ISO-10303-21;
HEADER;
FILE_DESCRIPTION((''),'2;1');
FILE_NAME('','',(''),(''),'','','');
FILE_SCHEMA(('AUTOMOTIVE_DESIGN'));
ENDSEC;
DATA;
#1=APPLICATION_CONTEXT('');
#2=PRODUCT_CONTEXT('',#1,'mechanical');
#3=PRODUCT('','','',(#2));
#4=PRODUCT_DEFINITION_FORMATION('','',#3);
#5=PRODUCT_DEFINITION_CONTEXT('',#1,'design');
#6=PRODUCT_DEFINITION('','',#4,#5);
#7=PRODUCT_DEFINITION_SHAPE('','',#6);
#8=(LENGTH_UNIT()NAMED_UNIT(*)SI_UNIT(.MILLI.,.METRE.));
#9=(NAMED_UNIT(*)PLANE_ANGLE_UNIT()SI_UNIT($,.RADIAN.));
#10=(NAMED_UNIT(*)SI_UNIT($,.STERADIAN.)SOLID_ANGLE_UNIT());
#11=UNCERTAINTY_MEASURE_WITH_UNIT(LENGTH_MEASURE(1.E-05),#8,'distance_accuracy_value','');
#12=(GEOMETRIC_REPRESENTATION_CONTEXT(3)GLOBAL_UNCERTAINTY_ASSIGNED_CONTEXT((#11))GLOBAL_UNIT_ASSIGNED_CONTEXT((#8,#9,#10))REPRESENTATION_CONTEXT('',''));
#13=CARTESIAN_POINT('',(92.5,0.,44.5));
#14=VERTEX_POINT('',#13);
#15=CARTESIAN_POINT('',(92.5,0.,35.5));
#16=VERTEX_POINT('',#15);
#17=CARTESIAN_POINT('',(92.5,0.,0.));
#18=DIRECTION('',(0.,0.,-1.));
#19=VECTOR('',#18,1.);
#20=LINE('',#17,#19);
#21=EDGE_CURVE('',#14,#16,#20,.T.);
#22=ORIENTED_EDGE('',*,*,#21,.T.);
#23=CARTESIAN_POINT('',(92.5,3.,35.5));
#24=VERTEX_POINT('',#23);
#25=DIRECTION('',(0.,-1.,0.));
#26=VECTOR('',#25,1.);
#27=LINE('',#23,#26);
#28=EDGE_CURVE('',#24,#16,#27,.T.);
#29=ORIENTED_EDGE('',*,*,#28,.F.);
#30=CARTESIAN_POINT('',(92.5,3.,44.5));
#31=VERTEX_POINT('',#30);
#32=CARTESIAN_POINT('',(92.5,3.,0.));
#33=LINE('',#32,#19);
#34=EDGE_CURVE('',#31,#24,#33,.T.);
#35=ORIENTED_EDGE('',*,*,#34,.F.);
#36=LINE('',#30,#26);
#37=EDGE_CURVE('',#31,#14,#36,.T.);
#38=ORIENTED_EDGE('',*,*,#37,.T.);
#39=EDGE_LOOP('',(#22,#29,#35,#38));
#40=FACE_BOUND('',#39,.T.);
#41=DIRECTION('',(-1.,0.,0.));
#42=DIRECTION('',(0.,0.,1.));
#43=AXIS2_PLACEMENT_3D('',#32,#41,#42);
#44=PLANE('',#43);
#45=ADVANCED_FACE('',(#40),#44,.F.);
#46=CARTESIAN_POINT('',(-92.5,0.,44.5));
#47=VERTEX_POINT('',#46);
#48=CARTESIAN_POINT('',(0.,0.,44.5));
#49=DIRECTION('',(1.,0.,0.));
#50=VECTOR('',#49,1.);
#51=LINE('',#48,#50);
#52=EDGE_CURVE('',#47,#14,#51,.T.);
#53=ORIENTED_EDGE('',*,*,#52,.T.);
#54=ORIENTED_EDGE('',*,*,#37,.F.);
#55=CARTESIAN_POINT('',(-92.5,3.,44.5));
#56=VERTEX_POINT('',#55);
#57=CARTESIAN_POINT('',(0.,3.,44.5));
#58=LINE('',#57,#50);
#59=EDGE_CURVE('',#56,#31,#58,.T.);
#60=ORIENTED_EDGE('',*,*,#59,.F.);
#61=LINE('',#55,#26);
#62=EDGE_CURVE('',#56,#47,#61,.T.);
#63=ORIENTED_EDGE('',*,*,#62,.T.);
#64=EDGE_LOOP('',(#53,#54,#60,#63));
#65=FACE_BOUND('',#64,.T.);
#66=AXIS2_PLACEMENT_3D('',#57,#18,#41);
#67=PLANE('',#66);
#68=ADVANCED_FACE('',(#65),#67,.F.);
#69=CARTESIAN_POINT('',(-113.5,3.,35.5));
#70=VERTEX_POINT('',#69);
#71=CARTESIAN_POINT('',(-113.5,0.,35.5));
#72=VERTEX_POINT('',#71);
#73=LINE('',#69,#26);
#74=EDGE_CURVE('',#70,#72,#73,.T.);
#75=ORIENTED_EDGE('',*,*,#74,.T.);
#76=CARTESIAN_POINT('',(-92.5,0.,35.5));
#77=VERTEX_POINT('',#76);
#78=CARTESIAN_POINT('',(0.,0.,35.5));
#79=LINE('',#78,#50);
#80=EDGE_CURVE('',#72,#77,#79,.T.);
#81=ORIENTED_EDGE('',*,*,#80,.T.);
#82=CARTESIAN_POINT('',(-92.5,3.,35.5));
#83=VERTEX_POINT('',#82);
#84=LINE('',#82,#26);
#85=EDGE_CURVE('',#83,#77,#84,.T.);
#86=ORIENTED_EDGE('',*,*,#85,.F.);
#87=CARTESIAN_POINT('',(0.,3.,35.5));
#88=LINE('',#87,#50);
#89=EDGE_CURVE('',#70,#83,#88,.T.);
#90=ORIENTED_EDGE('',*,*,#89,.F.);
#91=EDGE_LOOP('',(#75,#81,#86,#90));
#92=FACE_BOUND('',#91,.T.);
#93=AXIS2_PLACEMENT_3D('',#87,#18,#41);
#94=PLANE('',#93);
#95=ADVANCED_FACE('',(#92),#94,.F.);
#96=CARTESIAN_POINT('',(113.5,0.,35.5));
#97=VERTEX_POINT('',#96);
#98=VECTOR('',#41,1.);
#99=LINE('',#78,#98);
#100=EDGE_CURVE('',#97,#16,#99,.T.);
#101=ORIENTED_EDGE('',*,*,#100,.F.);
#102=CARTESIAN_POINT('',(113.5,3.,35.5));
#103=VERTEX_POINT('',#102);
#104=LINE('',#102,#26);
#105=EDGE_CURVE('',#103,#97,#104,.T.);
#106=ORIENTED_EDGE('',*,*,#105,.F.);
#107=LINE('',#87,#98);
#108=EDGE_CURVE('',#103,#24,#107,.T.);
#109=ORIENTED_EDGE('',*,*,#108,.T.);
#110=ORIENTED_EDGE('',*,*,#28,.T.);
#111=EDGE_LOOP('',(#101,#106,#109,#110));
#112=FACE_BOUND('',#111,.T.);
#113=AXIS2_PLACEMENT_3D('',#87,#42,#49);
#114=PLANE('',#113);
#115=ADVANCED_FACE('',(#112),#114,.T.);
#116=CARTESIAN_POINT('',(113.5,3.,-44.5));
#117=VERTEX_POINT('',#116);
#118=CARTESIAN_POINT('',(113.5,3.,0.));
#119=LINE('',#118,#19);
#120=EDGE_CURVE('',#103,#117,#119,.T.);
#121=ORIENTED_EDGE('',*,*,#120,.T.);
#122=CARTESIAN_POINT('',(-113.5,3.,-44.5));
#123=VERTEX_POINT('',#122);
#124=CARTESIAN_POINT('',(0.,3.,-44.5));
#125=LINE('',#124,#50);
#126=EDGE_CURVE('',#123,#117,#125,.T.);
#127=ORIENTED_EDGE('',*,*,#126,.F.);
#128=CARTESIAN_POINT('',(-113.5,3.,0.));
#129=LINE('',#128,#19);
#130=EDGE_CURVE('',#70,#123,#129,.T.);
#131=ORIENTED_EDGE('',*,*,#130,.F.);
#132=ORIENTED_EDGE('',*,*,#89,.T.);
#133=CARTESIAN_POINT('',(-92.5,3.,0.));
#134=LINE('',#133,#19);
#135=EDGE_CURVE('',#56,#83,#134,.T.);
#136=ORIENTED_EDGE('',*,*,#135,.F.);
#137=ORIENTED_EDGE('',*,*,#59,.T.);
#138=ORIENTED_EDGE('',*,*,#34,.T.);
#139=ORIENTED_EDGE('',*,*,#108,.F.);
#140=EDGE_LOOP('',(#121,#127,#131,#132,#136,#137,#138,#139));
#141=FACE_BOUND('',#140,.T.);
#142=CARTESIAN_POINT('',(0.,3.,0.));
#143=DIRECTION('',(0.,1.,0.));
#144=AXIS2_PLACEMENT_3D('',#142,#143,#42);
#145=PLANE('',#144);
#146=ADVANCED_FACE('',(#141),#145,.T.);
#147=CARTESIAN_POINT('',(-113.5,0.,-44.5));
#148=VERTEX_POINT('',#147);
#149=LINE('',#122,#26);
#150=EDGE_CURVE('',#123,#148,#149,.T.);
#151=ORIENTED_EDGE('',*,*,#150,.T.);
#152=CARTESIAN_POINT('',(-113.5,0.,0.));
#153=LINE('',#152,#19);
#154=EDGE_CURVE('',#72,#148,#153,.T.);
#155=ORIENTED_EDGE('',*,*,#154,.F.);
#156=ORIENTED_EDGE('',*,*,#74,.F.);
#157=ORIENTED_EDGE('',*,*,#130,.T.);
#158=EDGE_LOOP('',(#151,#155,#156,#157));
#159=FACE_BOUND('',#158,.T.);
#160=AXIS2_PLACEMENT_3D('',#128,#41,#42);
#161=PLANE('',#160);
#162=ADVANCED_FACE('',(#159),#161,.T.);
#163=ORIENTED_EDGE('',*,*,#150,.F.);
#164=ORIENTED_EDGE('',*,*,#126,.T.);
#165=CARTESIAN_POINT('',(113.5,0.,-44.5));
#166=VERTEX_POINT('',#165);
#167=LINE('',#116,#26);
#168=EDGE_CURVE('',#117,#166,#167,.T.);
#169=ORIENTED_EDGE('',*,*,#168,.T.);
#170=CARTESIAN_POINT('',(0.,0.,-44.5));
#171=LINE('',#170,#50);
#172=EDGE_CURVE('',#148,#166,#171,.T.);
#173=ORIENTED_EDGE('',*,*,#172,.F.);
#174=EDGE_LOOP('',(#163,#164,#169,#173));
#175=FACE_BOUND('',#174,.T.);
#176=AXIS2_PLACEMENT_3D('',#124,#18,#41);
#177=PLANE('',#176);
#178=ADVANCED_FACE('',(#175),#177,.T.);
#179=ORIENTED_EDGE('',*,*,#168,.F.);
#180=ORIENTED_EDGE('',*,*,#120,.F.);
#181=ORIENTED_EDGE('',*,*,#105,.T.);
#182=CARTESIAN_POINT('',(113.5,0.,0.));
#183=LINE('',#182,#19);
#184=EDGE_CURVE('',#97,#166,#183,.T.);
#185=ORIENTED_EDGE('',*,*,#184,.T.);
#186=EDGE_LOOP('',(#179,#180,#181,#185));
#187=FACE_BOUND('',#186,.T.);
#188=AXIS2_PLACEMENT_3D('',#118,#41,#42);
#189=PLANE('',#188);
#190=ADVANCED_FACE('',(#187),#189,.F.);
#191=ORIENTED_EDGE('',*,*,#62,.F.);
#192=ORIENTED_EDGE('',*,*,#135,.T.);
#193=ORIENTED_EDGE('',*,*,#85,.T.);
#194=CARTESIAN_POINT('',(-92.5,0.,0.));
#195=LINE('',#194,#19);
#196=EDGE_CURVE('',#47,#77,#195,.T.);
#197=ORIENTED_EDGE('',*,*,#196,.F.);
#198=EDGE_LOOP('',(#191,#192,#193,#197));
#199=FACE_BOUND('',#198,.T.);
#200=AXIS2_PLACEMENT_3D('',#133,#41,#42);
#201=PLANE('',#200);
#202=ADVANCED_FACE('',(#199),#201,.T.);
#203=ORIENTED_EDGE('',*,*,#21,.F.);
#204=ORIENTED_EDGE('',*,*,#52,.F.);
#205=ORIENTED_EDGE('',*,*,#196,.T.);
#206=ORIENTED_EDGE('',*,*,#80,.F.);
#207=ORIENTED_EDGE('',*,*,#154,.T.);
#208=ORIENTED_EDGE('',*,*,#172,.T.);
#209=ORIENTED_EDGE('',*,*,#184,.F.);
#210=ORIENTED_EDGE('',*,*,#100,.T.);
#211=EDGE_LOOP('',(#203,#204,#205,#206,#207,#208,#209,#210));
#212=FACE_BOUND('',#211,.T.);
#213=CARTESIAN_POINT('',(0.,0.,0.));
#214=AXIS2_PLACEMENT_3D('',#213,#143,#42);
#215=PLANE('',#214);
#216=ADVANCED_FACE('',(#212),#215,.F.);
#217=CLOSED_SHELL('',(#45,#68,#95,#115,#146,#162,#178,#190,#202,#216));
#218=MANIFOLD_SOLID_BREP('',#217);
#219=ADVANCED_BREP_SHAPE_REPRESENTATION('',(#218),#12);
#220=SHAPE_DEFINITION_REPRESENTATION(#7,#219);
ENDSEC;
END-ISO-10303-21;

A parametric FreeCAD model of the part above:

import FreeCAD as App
import Part
import Sketcher
from FreeCAD import Vector


def add_polygon(sketch, points):
    """Adds a closed chain of lines whose ends are joined by coincident constraints."""
    first, n = sketch.GeometryCount, len(points)
    for a, b in zip(points, points[1:] + points[:1]):
        sketch.addGeometry(Part.LineSegment(App.Vector(*a, 0), App.Vector(*b, 0)), False)
    for i in range(n):
        sketch.addConstraint(Sketcher.Constraint("Coincident", first + i, 2, first + (i + 1) % n, 1))

doc = App.newDocument("Part")
body = doc.addObject("PartDesign::Body", "Body")

sketch1 = body.newObject("Sketcher::SketchObject", "Sketch")
sketch1.AttachmentSupport = (doc.getObject("XZ_Plane"), [""])
sketch1.MapMode = "FlatFace"
add_polygon(sketch1, [(-92, 36), (-92, 44), (92, 44), (92, 36), (114, 36), (114, -44), (-114, -44), (-114, 36)])
sketch1.addConstraint([
    Sketcher.Constraint("Vertical", 0),
    Sketcher.Constraint("Horizontal", 1),
    Sketcher.Constraint("Vertical", 2),
    Sketcher.Constraint("Horizontal", 3),
    Sketcher.Constraint("Vertical", 4),
    Sketcher.Constraint("Horizontal", 5),
    Sketcher.Constraint("Vertical", 6),
    Sketcher.Constraint("Horizontal", 7),
    Sketcher.Constraint("Symmetric", 3, 2, 6, 2, -2),
    Sketcher.Constraint("Equal", 3, 7),
    Sketcher.Constraint("DistanceX", 1, 1, 1, 2, 185.0),
    Sketcher.Constraint("DistanceX", 3, 1, 3, 2, 21.0),
    Sketcher.Constraint("DistanceY", 0, 1, 0, 2, 9.0),
    Sketcher.Constraint("DistanceY", 4, 2, 4, 1, 80.0),
    Sketcher.Constraint("DistanceY", -1, 1, 0, 2, 44.5),
])
pad1 = body.newObject("PartDesign::Pad", "Pad")
pad1.Profile = sketch1
pad1.Length = 3
pad1.Reversed = True

doc.recompute()
